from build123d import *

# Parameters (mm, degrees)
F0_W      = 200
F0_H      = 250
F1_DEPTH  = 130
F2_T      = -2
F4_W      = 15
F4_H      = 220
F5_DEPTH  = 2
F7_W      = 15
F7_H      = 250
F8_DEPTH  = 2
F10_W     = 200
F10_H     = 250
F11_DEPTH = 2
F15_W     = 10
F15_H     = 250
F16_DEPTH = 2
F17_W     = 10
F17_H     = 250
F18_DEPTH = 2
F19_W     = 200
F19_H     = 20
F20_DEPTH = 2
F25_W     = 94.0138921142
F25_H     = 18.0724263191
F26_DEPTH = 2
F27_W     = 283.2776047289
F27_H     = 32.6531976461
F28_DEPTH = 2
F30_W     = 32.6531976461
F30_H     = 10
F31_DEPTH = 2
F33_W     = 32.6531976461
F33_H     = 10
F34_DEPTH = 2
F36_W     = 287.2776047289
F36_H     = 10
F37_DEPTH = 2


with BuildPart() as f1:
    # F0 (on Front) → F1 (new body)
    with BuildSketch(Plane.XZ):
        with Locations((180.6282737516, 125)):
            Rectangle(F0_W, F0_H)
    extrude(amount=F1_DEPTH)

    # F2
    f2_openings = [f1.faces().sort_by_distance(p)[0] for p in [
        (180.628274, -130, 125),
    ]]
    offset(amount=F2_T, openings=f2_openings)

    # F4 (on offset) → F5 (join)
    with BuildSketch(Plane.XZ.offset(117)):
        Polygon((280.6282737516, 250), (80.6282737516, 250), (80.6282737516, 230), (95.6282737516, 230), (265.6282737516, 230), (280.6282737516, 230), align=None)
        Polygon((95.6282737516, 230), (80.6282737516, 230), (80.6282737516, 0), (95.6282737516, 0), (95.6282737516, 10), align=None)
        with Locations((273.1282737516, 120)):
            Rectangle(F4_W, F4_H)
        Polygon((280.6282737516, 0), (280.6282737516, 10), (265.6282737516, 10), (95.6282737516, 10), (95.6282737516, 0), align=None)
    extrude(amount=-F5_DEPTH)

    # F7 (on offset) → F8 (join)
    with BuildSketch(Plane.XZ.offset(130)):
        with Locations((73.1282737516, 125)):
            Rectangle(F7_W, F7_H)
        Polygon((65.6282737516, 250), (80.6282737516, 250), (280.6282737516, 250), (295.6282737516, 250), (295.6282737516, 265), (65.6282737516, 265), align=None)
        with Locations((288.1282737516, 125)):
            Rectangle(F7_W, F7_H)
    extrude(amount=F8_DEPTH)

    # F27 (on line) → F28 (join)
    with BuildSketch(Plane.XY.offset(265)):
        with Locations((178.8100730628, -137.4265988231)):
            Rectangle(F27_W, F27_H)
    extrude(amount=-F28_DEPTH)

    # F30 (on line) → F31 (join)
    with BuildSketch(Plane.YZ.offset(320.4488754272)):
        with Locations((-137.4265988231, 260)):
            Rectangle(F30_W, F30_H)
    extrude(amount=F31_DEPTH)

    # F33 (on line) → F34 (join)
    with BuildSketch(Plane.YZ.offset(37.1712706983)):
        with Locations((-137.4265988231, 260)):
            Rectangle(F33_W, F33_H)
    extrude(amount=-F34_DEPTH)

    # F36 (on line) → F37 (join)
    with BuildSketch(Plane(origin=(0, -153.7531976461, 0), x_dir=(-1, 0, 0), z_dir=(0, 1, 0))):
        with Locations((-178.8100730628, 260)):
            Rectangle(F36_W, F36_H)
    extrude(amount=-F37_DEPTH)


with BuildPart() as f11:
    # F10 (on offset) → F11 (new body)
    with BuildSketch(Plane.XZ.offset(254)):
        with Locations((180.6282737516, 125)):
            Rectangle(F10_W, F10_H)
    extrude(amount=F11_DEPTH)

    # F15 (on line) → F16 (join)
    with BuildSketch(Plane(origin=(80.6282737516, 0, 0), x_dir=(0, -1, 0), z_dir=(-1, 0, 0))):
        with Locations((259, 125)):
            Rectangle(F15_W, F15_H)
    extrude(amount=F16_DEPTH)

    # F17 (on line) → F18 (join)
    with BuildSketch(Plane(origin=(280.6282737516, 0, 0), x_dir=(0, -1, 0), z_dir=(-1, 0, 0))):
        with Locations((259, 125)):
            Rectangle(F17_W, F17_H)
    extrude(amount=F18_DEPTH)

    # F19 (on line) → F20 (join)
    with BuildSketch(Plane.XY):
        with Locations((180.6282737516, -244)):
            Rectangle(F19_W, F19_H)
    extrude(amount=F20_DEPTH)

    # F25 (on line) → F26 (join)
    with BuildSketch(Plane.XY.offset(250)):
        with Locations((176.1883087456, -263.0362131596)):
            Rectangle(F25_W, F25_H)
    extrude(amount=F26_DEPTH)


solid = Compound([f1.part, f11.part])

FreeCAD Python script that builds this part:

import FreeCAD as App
import Part
import Sketcher
from FreeCAD import Vector
Q = App.Units.Quantity


def faces_at(feature, points):
    """Names of the faces that lie closest to the given points."""
    faces = feature.Shape.Faces
    near = lambda p: min(range(len(faces)), key=lambda i: faces[i].distToShape(Part.Vertex(*p))[0])
    return sorted({f"Face{near(p) + 1}" for p in points})

doc = App.newDocument("Part")
body = doc.addObject("PartDesign::Body", "Body")
body.AllowCompound = True

sketch1 = doc.addObject("Sketcher::SketchObject", "Sketch")
body.addObject(sketch1)
sketch1.AttachmentSupport = (doc.XZ_Plane, [""])
sketch1.MapMode = "FlatFace"
sketch1.addGeometry(Part.LineSegment(Vector(81, 250, 0), Vector(81, 0, 0)), False)
sketch1.addGeometry(Part.LineSegment(Vector(81, 0, 0), Vector(281, 0, 0)), False)
sketch1.addGeometry(Part.LineSegment(Vector(281, 0, 0), Vector(281, 250, 0)), False)
sketch1.addGeometry(Part.LineSegment(Vector(281, 250, 0), Vector(81, 250, 0)), False)
sketch1.addConstraint(Sketcher.Constraint("Coincident", 0, 2, 1, 1))
sketch1.addConstraint(Sketcher.Constraint("Coincident", 1, 2, 2, 1))
sketch1.addConstraint(Sketcher.Constraint("Coincident", 2, 2, 3, 1))
sketch1.addConstraint(Sketcher.Constraint("Coincident", 3, 2, 0, 1))
sketch1.addConstraint(Sketcher.Constraint("Vertical", 0))
sketch1.addConstraint(Sketcher.Constraint("Horizontal", 1))
sketch1.addConstraint(Sketcher.Constraint("Vertical", 2))
sketch1.addConstraint(Sketcher.Constraint("Horizontal", 3))
sketch1.addConstraint(Sketcher.Constraint("PointOnObject", 0, 2, -1))
sketch1.addConstraint(Sketcher.Constraint("DistanceX", 1, 1, 1, 2, Q("200 mm")))
sketch1.addConstraint(Sketcher.Constraint("DistanceY", 0, 2, 0, 1, Q("250 mm")))
sketch1.addConstraint(Sketcher.Constraint("DistanceX", -1, 1, 0, 2, Q("80.628274 mm")))
pad1 = doc.addObject("PartDesign::Pad", "Pad")
body.addObject(pad1)
pad1.Profile = sketch1
pad1.Length = 130
doc.recompute()

thickness = doc.addObject("PartDesign::Thickness", "Thickness")
body.addObject(thickness)
thickness.Base = (pad1, faces_at(pad1, [(180.628, -130, 125)]))
thickness.Value = 2
thickness.Reversed = True
thickness.Join = "Arc"

sketch2 = doc.addObject("Sketcher::SketchObject", "Sketch001")
body.addObject(sketch2)
sketch2.AttachmentSupport = (doc.XZ_Plane, [""])
sketch2.MapMode = "FlatFace"
sketch2.AttachmentOffset = App.Placement(Vector(0, 0, 117), App.Rotation())
sketch2.addGeometry(Part.LineSegment(Vector(281, 250, 0), Vector(81, 250, 0)), False)
sketch2.addGeometry(Part.LineSegment(Vector(81, 250, 0), Vector(81, 0, 0)), False)
sketch2.addGeometry(Part.LineSegment(Vector(81, 0, 0), Vector(281, 0, 0)), False)
sketch2.addGeometry(Part.LineSegment(Vector(281, 0, 0), Vector(281, 250, 0)), False)
sketch2.addGeometry(Part.LineSegment(Vector(96, 10, 0), Vector(96, 230, 0)), False)
sketch2.addGeometry(Part.LineSegment(Vector(96, 230, 0), Vector(266, 230, 0)), False)
sketch2.addGeometry(Part.LineSegment(Vector(266, 230, 0), Vector(266, 10, 0)), False)
sketch2.addGeometry(Part.LineSegment(Vector(266, 10, 0), Vector(96, 10, 0)), False)
sketch2.addConstraint(Sketcher.Constraint("Coincident", 0, 2, 1, 1))
sketch2.addConstraint(Sketcher.Constraint("Coincident", 1, 2, 2, 1))
sketch2.addConstraint(Sketcher.Constraint("Coincident", 2, 2, 3, 1))
sketch2.addConstraint(Sketcher.Constraint("Coincident", 3, 2, 0, 1))
sketch2.addConstraint(Sketcher.Constraint("Coincident", 4, 2, 5, 1))
sketch2.addConstraint(Sketcher.Constraint("Coincident", 5, 2, 6, 1))
sketch2.addConstraint(Sketcher.Constraint("Coincident", 6, 2, 7, 1))
sketch2.addConstraint(Sketcher.Constraint("Coincident", 7, 2, 4, 1))
sketch2.addConstraint(Sketcher.Constraint("Horizontal", 0))
sketch2.addConstraint(Sketcher.Constraint("Vertical", 1))
sketch2.addConstraint(Sketcher.Constraint("Horizontal", 2))
sketch2.addConstraint(Sketcher.Constraint("Vertical", 3))
sketch2.addConstraint(Sketcher.Constraint("Vertical", 4))
sketch2.addConstraint(Sketcher.Constraint("Horizontal", 5))
sketch2.addConstraint(Sketcher.Constraint("Vertical", 6))
sketch2.addConstraint(Sketcher.Constraint("Horizontal", 7))
sketch2.addConstraint(Sketcher.Constraint("PointOnObject", 1, 2, -1))
sketch2.addConstraint(Sketcher.Constraint("DistanceX", 0, 2, 0, 1, Q("200 mm")))
sketch2.addConstraint(Sketcher.Constraint("DistanceX", 5, 1, 5, 2, Q("170 mm")))
sketch2.addConstraint(Sketcher.Constraint("DistanceY", 1, 2, 1, 1, Q("250 mm")))
sketch2.addConstraint(Sketcher.Constraint("DistanceY", 4, 1, 4, 2, Q("220 mm")))
sketch2.addConstraint(Sketcher.Constraint("DistanceY", -1, 1, 4, 2, Q("230 mm")))
sketch2.addConstraint(Sketcher.Constraint("DistanceX", 0, 2, 4, 2, Q("15 mm")))
sketch2.addConstraint(Sketcher.Constraint("DistanceX", -1, 1, 0, 2, Q("80.628274 mm")))
pad2 = doc.addObject("PartDesign::Pad", "Pad001")
body.addObject(pad2)
pad2.Profile = sketch2
pad2.Length = 2
pad2.Reversed = True

sketch3 = doc.addObject("Sketcher::SketchObject", "Sketch002")
body.addObject(sketch3)
sketch3.AttachmentSupport = (doc.XZ_Plane, [""])
sketch3.MapMode = "FlatFace"
sketch3.AttachmentOffset = App.Placement(Vector(0, 0, 130), App.Rotation())
sketch3.addGeometry(Part.LineSegment(Vector(66, 0, 0), Vector(81, 0, 0)), False)
sketch3.addGeometry(Part.LineSegment(Vector(81, 0, 0), Vector(81, 250, 0)), False)
sketch3.addGeometry(Part.LineSegment(Vector(81, 250, 0), Vector(281, 250, 0)), False)
sketch3.addGeometry(Part.LineSegment(Vector(281, 250, 0), Vector(281, 0, 0)), False)
sketch3.addGeometry(Part.LineSegment(Vector(281, 0, 0), Vector(296, 0, 0)), False)
sketch3.addGeometry(Part.LineSegment(Vector(296, 0, 0), Vector(296, 265, 0)), False)
sketch3.addGeometry(Part.LineSegment(Vector(296, 265, 0), Vector(66, 265, 0)), False)
sketch3.addGeometry(Part.LineSegment(Vector(66, 265, 0), Vector(66, 0, 0)), False)
sketch3.addConstraint(Sketcher.Constraint("Coincident", 0, 2, 1, 1))
sketch3.addConstraint(Sketcher.Constraint("Coincident", 1, 2, 2, 1))
sketch3.addConstraint(Sketcher.Constraint("Coincident", 2, 2, 3, 1))
sketch3.addConstraint(Sketcher.Constraint("Coincident", 3, 2, 4, 1))
sketch3.addConstraint(Sketcher.Constraint("Coincident", 4, 2, 5, 1))
sketch3.addConstraint(Sketcher.Constraint("Coincident", 5, 2, 6, 1))
sketch3.addConstraint(Sketcher.Constraint("Coincident", 6, 2, 7, 1))
sketch3.addConstraint(Sketcher.Constraint("Coincident", 7, 2, 0, 1))
sketch3.addConstraint(Sketcher.Constraint("Horizontal", 0))
sketch3.addConstraint(Sketcher.Constraint("Vertical", 1))
sketch3.addConstraint(Sketcher.Constraint("Horizontal", 2))
sketch3.addConstraint(Sketcher.Constraint("Vertical", 3))
sketch3.addConstraint(Sketcher.Constraint("Horizontal", 4))
sketch3.addConstraint(Sketcher.Constraint("Vertical", 5))
sketch3.addConstraint(Sketcher.Constraint("Horizontal", 6))
sketch3.addConstraint(Sketcher.Constraint("Vertical", 7))
sketch3.addConstraint(Sketcher.Constraint("PointOnObject", 0, 2, -1))
sketch3.addConstraint(Sketcher.Constraint("PointOnObject", 3, 2, -1))
sketch3.addConstraint(Sketcher.Constraint("Equal", 0, 4))
sketch3.addConstraint(Sketcher.Constraint("DistanceX", 0, 1, 0, 2, Q("15 mm")))
sketch3.addConstraint(Sketcher.Constraint("DistanceX", 2, 1, 2, 2, Q("200 mm")))
sketch3.addConstraint(Sketcher.Constraint("DistanceY", 1, 1, 1, 2, Q("250 mm")))
sketch3.addConstraint(Sketcher.Constraint("DistanceY", 5, 1, 5, 2, Q("265 mm")))
sketch3.addConstraint(Sketcher.Constraint("DistanceX", -1, 1, 0, 2, Q("80.628274 mm")))
pad3 = doc.addObject("PartDesign::Pad", "Pad002")
body.addObject(pad3)
pad3.Profile = sketch3
pad3.Length = 2

sketch4 = doc.addObject("Sketcher::SketchObject", "Sketch003")
body.addObject(sketch4)
sketch4.AttachmentSupport = (doc.XY_Plane, [""])
sketch4.MapMode = "FlatFace"
sketch4.AttachmentOffset = App.Placement(Vector(0, 0, 265), App.Rotation())
sketch4.addGeometry(Part.LineSegment(Vector(37, -121, 0), Vector(37, -154, 0)), False)
sketch4.addGeometry(Part.LineSegment(Vector(37, -154, 0), Vector(320, -154, 0)), False)
sketch4.addGeometry(Part.LineSegment(Vector(320, -154, 0), Vector(320, -121, 0)), False)
sketch4.addGeometry(Part.LineSegment(Vector(320, -121, 0), Vector(37, -121, 0)), False)
sketch4.addConstraint(Sketcher.Constraint("Coincident", 0, 2, 1, 1))
sketch4.addConstraint(Sketcher.Constraint("Coincident", 1, 2, 2, 1))
sketch4.addConstraint(Sketcher.Constraint("Coincident", 2, 2, 3, 1))
sketch4.addConstraint(Sketcher.Constraint("Coincident", 3, 2, 0, 1))
sketch4.addConstraint(Sketcher.Constraint("Vertical", 0))
sketch4.addConstraint(Sketcher.Constraint("Horizontal", 1))
sketch4.addConstraint(Sketcher.Constraint("Vertical", 2))
sketch4.addConstraint(Sketcher.Constraint("Horizontal", 3))
sketch4.addConstraint(Sketcher.Constraint("DistanceY", 2, 2, -1, 1, Q("121.1 mm")))
sketch4.addConstraint(Sketcher.Constraint("DistanceX", 1, 1, 1, 2, Q("283.277605 mm")))
sketch4.addConstraint(Sketcher.Constraint("DistanceY", 0, 2, 0, 1, Q("32.653198 mm")))
sketch4.addConstraint(Sketcher.Constraint("DistanceX", -1, 1, 0, 2, Q("37.171271 mm")))
pad4 = doc.addObject("PartDesign::Pad", "Pad003")
body.addObject(pad4)
pad4.Profile = sketch4
pad4.Length = 2
pad4.Reversed = True

sketch5 = doc.addObject("Sketcher::SketchObject", "Sketch004")
body.addObject(sketch5)
sketch5.AttachmentSupport = (doc.YZ_Plane, [""])
sketch5.MapMode = "FlatFace"
sketch5.AttachmentOffset = App.Placement(Vector(0, 0, 320.448875), App.Rotation())
sketch5.addGeometry(Part.LineSegment(Vector(-154, 265, 0), Vector(-154, 255, 0)), False)
sketch5.addGeometry(Part.LineSegment(Vector(-154, 255, 0), Vector(-121, 255, 0)), False)
sketch5.addGeometry(Part.LineSegment(Vector(-121, 255, 0), Vector(-121, 265, 0)), False)
sketch5.addGeometry(Part.LineSegment(Vector(-121, 265, 0), Vector(-154, 265, 0)), False)
sketch5.addConstraint(Sketcher.Constraint("Coincident", 0, 2, 1, 1))
sketch5.addConstraint(Sketcher.Constraint("Coincident", 1, 2, 2, 1))
sketch5.addConstraint(Sketcher.Constraint("Coincident", 2, 2, 3, 1))
sketch5.addConstraint(Sketcher.Constraint("Coincident", 3, 2, 0, 1))
sketch5.addConstraint(Sketcher.Constraint("Vertical", 0))
sketch5.addConstraint(Sketcher.Constraint("Horizontal", 1))
sketch5.addConstraint(Sketcher.Constraint("Vertical", 2))
sketch5.addConstraint(Sketcher.Constraint("Horizontal", 3))
sketch5.addConstraint(Sketcher.Constraint("DistanceY", 0, 2, 0, 1, Q("10 mm")))
sketch5.addConstraint(Sketcher.Constraint("DistanceY", -1, 1, 0, 2, Q("255 mm")))
sketch5.addConstraint(Sketcher.Constraint("DistanceX", 1, 2, -1, 1, Q("121.1 mm")))
sketch5.addConstraint(Sketcher.Constraint("DistanceX", 1, 1, 1, 2, Q("32.653198 mm")))
pad5 = doc.addObject("PartDesign::Pad", "Pad004")
body.addObject(pad5)
pad5.Profile = sketch5
pad5.Length = 2

sketch6 = doc.addObject("Sketcher::SketchObject", "Sketch005")
body.addObject(sketch6)
sketch6.AttachmentSupport = (doc.YZ_Plane, [""])
sketch6.MapMode = "FlatFace"
sketch6.AttachmentOffset = App.Placement(Vector(0, 0, 37.171271), App.Rotation())
sketch6.addGeometry(Part.LineSegment(Vector(-154, 265, 0), Vector(-154, 255, 0)), False)
sketch6.addGeometry(Part.LineSegment(Vector(-154, 255, 0), Vector(-121, 255, 0)), False)
sketch6.addGeometry(Part.LineSegment(Vector(-121, 255, 0), Vector(-121, 265, 0)), False)
sketch6.addGeometry(Part.LineSegment(Vector(-121, 265, 0), Vector(-154, 265, 0)), False)
sketch6.addConstraint(Sketcher.Constraint("Coincident", 0, 2, 1, 1))
sketch6.addConstraint(Sketcher.Constraint("Coincident", 1, 2, 2, 1))
sketch6.addConstraint(Sketcher.Constraint("Coincident", 2, 2, 3, 1))
sketch6.addConstraint(Sketcher.Constraint("Coincident", 3, 2, 0, 1))
sketch6.addConstraint(Sketcher.Constraint("Vertical", 0))
sketch6.addConstraint(Sketcher.Constraint("Horizontal", 1))
sketch6.addConstraint(Sketcher.Constraint("Vertical", 2))
sketch6.addConstraint(Sketcher.Constraint("Horizontal", 3))
sketch6.addConstraint(Sketcher.Constraint("DistanceY", 0, 2, 0, 1, Q("10 mm")))
sketch6.addConstraint(Sketcher.Constraint("DistanceY", -1, 1, 0, 2, Q("255 mm")))
sketch6.addConstraint(Sketcher.Constraint("DistanceX", 1, 2, -1, 1, Q("121.1 mm")))
sketch6.addConstraint(Sketcher.Constraint("DistanceX", 1, 1, 1, 2, Q("32.653198 mm")))
pad6 = doc.addObject("PartDesign::Pad", "Pad005")
body.addObject(pad6)
pad6.Profile = sketch6
pad6.Length = 2
pad6.Reversed = True

sketch7 = doc.addObject("Sketcher::SketchObject", "Sketch006")
body.addObject(sketch7)
sketch7.AttachmentSupport = (doc.XZ_Plane, [""])
sketch7.MapMode = "FlatFace"
sketch7.AttachmentOffset = App.Placement(Vector(0, 0, 153.753198), App.Rotation())
sketch7.addGeometry(Part.LineSegment(Vector(322, 265, 0), Vector(322, 255, 0)), False)
sketch7.addGeometry(Part.LineSegment(Vector(322, 255, 0), Vector(35, 255, 0)), False)
sketch7.addGeometry(Part.LineSegment(Vector(35, 255, 0), Vector(35, 265, 0)), False)
sketch7.addGeometry(Part.LineSegment(Vector(35, 265, 0), Vector(322, 265, 0)), False)
sketch7.addConstraint(Sketcher.Constraint("Coincident", 0, 2, 1, 1))
sketch7.addConstraint(Sketcher.Constraint("Coincident", 1, 2, 2, 1))
sketch7.addConstraint(Sketcher.Constraint("Coincident", 2, 2, 3, 1))
sketch7.addConstraint(Sketcher.Constraint("Coincident", 3, 2, 0, 1))
sketch7.addConstraint(Sketcher.Constraint("Vertical", 0))
sketch7.addConstraint(Sketcher.Constraint("Horizontal", 1))
sketch7.addConstraint(Sketcher.Constraint("Vertical", 2))
sketch7.addConstraint(Sketcher.Constraint("Horizontal", 3))
sketch7.addConstraint(Sketcher.Constraint("DistanceY", 0, 2, 0, 1, Q("10 mm")))
sketch7.addConstraint(Sketcher.Constraint("DistanceY", -1, 1, 0, 2, Q("255 mm")))
sketch7.addConstraint(Sketcher.Constraint("DistanceX", 1, 2, 1, 1, Q("287.277605 mm")))
sketch7.addConstraint(Sketcher.Constraint("DistanceX", -1, 1, 1, 2, Q("35.171271 mm")))
pad7 = doc.addObject("PartDesign::Pad", "Pad006")
body.addObject(pad7)
pad7.Profile = sketch7
pad7.Length = 2
body2 = doc.addObject("PartDesign::Body", "Body001")

sketch8 = doc.addObject("Sketcher::SketchObject", "Sketch007")
body2.addObject(sketch8)
sketch8.AttachmentSupport = (doc.getObject("XZ_Plane001"), [""])
sketch8.MapMode = "FlatFace"
sketch8.AttachmentOffset = App.Placement(Vector(0, 0, 254), App.Rotation())
sketch8.addGeometry(Part.LineSegment(Vector(81, 250, 0), Vector(81, 0, 0)), False)
sketch8.addGeometry(Part.LineSegment(Vector(81, 0, 0), Vector(281, 0, 0)), False)
sketch8.addGeometry(Part.LineSegment(Vector(281, 0, 0), Vector(281, 250, 0)), False)
sketch8.addGeometry(Part.LineSegment(Vector(281, 250, 0), Vector(81, 250, 0)), False)
sketch8.addConstraint(Sketcher.Constraint("Coincident", 0, 2, 1, 1))
sketch8.addConstraint(Sketcher.Constraint("Coincident", 1, 2, 2, 1))
sketch8.addConstraint(Sketcher.Constraint("Coincident", 2, 2, 3, 1))
sketch8.addConstraint(Sketcher.Constraint("Coincident", 3, 2, 0, 1))
sketch8.addConstraint(Sketcher.Constraint("Vertical", 0))
sketch8.addConstraint(Sketcher.Constraint("Horizontal", 1))
sketch8.addConstraint(Sketcher.Constraint("Vertical", 2))
sketch8.addConstraint(Sketcher.Constraint("Horizontal", 3))
sketch8.addConstraint(Sketcher.Constraint("PointOnObject", 0, 2, -1))
sketch8.addConstraint(Sketcher.Constraint("DistanceX", 1, 1, 1, 2, Q("200 mm")))
sketch8.addConstraint(Sketcher.Constraint("DistanceY", 0, 2, 0, 1, Q("250 mm")))
sketch8.addConstraint(Sketcher.Constraint("DistanceX", -1, 1, 0, 2, Q("80.628274 mm")))
pad8 = doc.addObject("PartDesign::Pad", "Pad007")
body2.addObject(pad8)
pad8.Profile = sketch8
pad8.Length = 2

sketch9 = doc.addObject("Sketcher::SketchObject", "Sketch008")
body2.addObject(sketch9)
sketch9.AttachmentSupport = (doc.getObject("YZ_Plane001"), [""])
sketch9.MapMode = "FlatFace"
sketch9.AttachmentOffset = App.Placement(Vector(0, 0, 80.628274), App.Rotation())
sketch9.addGeometry(Part.LineSegment(Vector(-254, 250, 0), Vector(-254, 0, 0)), False)
sketch9.addGeometry(Part.LineSegment(Vector(-254, 0, 0), Vector(-264, 0, 0)), False)
sketch9.addGeometry(Part.LineSegment(Vector(-264, 0, 0), Vector(-264, 250, 0)), False)
sketch9.addGeometry(Part.LineSegment(Vector(-264, 250, 0), Vector(-254, 250, 0)), False)
sketch9.addConstraint(Sketcher.Constraint("Coincident", 0, 2, 1, 1))
sketch9.addConstraint(Sketcher.Constraint("Coincident", 1, 2, 2, 1))
sketch9.addConstraint(Sketcher.Constraint("Coincident", 2, 2, 3, 1))
sketch9.addConstraint(Sketcher.Constraint("Coincident", 3, 2, 0, 1))
sketch9.addConstraint(Sketcher.Constraint("Vertical", 0))
sketch9.addConstraint(Sketcher.Constraint("Horizontal", 1))
sketch9.addConstraint(Sketcher.Constraint("Vertical", 2))
sketch9.addConstraint(Sketcher.Constraint("Horizontal", 3))
sketch9.addConstraint(Sketcher.Constraint("PointOnObject", 0, 2, -1))
sketch9.addConstraint(Sketcher.Constraint("DistanceX", 1, 2, 1, 1, Q("10 mm")))
sketch9.addConstraint(Sketcher.Constraint("DistanceY", 0, 2, 0, 1, Q("250 mm")))
sketch9.addConstraint(Sketcher.Constraint("DistanceX", 0, 2, -1, 1, Q("254 mm")))
pad9 = doc.addObject("PartDesign::Pad", "Pad008")
body2.addObject(pad9)
pad9.Profile = sketch9
pad9.Length = 2
pad9.Reversed = True

sketch10 = doc.addObject("Sketcher::SketchObject", "Sketch009")
body2.addObject(sketch10)
sketch10.AttachmentSupport = (doc.getObject("YZ_Plane001"), [""])
sketch10.MapMode = "FlatFace"
sketch10.AttachmentOffset = App.Placement(Vector(0, 0, 280.628274), App.Rotation())
sketch10.addGeometry(Part.LineSegment(Vector(-254, 250, 0), Vector(-254, 0, 0)), False)
sketch10.addGeometry(Part.LineSegment(Vector(-254, 0, 0), Vector(-264, 0, 0)), False)
sketch10.addGeometry(Part.LineSegment(Vector(-264, 0, 0), Vector(-264, 250, 0)), False)
sketch10.addGeometry(Part.LineSegment(Vector(-264, 250, 0), Vector(-254, 250, 0)), False)
sketch10.addConstraint(Sketcher.Constraint("Coincident", 0, 2, 1, 1))
sketch10.addConstraint(Sketcher.Constraint("Coincident", 1, 2, 2, 1))
sketch10.addConstraint(Sketcher.Constraint("Coincident", 2, 2, 3, 1))
sketch10.addConstraint(Sketcher.Constraint("Coincident", 3, 2, 0, 1))
sketch10.addConstraint(Sketcher.Constraint("Vertical", 0))
sketch10.addConstraint(Sketcher.Constraint("Horizontal", 1))
sketch10.addConstraint(Sketcher.Constraint("Vertical", 2))
sketch10.addConstraint(Sketcher.Constraint("Horizontal", 3))
sketch10.addConstraint(Sketcher.Constraint("PointOnObject", 0, 2, -1))
sketch10.addConstraint(Sketcher.Constraint("DistanceX", 1, 2, 1, 1, Q("10 mm")))
sketch10.addConstraint(Sketcher.Constraint("DistanceY", 0, 2, 0, 1, Q("250 mm")))
sketch10.addConstraint(Sketcher.Constraint("DistanceX", 0, 2, -1, 1, Q("254 mm")))
pad10 = doc.addObject("PartDesign::Pad", "Pad009")
body2.addObject(pad10)
pad10.Profile = sketch10
pad10.Length = 2
pad10.Reversed = True

sketch11 = doc.addObject("Sketcher::SketchObject", "Sketch010")
body2.addObject(sketch11)
sketch11.AttachmentSupport = (doc.getObject("XY_Plane001"), [""])
sketch11.MapMode = "FlatFace"
sketch11.addGeometry(Part.LineSegment(Vector(81, -234, 0), Vector(81, -254, 0)), False)
sketch11.addGeometry(Part.LineSegment(Vector(81, -254, 0), Vector(281, -254, 0)), False)
sketch11.addGeometry(Part.LineSegment(Vector(281, -254, 0), Vector(281, -234, 0)), False)
sketch11.addGeometry(Part.LineSegment(Vector(281, -234, 0), Vector(81, -234, 0)), False)
sketch11.addConstraint(Sketcher.Constraint("Coincident", 0, 2, 1, 1))
sketch11.addConstraint(Sketcher.Constraint("Coincident", 1, 2, 2, 1))
sketch11.addConstraint(Sketcher.Constraint("Coincident", 2, 2, 3, 1))
sketch11.addConstraint(Sketcher.Constraint("Coincident", 3, 2, 0, 1))
sketch11.addConstraint(Sketcher.Constraint("Vertical", 0))
sketch11.addConstraint(Sketcher.Constraint("Horizontal", 1))
sketch11.addConstraint(Sketcher.Constraint("Vertical", 2))
sketch11.addConstraint(Sketcher.Constraint("Horizontal", 3))
sketch11.addConstraint(Sketcher.Constraint("DistanceX", 1, 1, 1, 2, Q("200 mm")))
sketch11.addConstraint(Sketcher.Constraint("DistanceY", 0, 2, 0, 1, Q("20 mm")))
sketch11.addConstraint(Sketcher.Constraint("DistanceY", 0, 2, -1, 1, Q("254 mm")))
sketch11.addConstraint(Sketcher.Constraint("DistanceX", -1, 1, 0, 2, Q("80.628274 mm")))
pad11 = doc.addObject("PartDesign::Pad", "Pad010")
body2.addObject(pad11)
pad11.Profile = sketch11
pad11.Length = 2

sketch12 = doc.addObject("Sketcher::SketchObject", "Sketch011")
body2.addObject(sketch12)
sketch12.AttachmentSupport = (doc.getObject("XY_Plane001"), [""])
sketch12.MapMode = "FlatFace"
sketch12.AttachmentOffset = App.Placement(Vector(0, 0, 250), App.Rotation())
sketch12.addGeometry(Part.LineSegment(Vector(129, -254, 0), Vector(129, -272, 0)), False)
sketch12.addGeometry(Part.LineSegment(Vector(129, -272, 0), Vector(223, -272, 0)), False)
sketch12.addGeometry(Part.LineSegment(Vector(223, -272, 0), Vector(223, -254, 0)), False)
sketch12.addGeometry(Part.LineSegment(Vector(223, -254, 0), Vector(129, -254, 0)), False)
sketch12.addConstraint(Sketcher.Constraint("Coincident", 0, 2, 1, 1))
sketch12.addConstraint(Sketcher.Constraint("Coincident", 1, 2, 2, 1))
sketch12.addConstraint(Sketcher.Constraint("Coincident", 2, 2, 3, 1))
sketch12.addConstraint(Sketcher.Constraint("Coincident", 3, 2, 0, 1))
sketch12.addConstraint(Sketcher.Constraint("Vertical", 0))
sketch12.addConstraint(Sketcher.Constraint("Horizontal", 1))
sketch12.addConstraint(Sketcher.Constraint("Vertical", 2))
sketch12.addConstraint(Sketcher.Constraint("Horizontal", 3))
sketch12.addConstraint(Sketcher.Constraint("DistanceY", 2, 2, -1, 1, Q("254 mm")))
sketch12.addConstraint(Sketcher.Constraint("DistanceX", 1, 1, 1, 2, Q("94.013892 mm")))
sketch12.addConstraint(Sketcher.Constraint("DistanceY", 0, 2, 0, 1, Q("18.072426 mm")))
sketch12.addConstraint(Sketcher.Constraint("DistanceX", -1, 1, 0, 2, Q("129.181363 mm")))
pad12 = doc.addObject("PartDesign::Pad", "Pad011")
body2.addObject(pad12)
pad12.Profile = sketch12
pad12.Length = 2

doc.recompute()
